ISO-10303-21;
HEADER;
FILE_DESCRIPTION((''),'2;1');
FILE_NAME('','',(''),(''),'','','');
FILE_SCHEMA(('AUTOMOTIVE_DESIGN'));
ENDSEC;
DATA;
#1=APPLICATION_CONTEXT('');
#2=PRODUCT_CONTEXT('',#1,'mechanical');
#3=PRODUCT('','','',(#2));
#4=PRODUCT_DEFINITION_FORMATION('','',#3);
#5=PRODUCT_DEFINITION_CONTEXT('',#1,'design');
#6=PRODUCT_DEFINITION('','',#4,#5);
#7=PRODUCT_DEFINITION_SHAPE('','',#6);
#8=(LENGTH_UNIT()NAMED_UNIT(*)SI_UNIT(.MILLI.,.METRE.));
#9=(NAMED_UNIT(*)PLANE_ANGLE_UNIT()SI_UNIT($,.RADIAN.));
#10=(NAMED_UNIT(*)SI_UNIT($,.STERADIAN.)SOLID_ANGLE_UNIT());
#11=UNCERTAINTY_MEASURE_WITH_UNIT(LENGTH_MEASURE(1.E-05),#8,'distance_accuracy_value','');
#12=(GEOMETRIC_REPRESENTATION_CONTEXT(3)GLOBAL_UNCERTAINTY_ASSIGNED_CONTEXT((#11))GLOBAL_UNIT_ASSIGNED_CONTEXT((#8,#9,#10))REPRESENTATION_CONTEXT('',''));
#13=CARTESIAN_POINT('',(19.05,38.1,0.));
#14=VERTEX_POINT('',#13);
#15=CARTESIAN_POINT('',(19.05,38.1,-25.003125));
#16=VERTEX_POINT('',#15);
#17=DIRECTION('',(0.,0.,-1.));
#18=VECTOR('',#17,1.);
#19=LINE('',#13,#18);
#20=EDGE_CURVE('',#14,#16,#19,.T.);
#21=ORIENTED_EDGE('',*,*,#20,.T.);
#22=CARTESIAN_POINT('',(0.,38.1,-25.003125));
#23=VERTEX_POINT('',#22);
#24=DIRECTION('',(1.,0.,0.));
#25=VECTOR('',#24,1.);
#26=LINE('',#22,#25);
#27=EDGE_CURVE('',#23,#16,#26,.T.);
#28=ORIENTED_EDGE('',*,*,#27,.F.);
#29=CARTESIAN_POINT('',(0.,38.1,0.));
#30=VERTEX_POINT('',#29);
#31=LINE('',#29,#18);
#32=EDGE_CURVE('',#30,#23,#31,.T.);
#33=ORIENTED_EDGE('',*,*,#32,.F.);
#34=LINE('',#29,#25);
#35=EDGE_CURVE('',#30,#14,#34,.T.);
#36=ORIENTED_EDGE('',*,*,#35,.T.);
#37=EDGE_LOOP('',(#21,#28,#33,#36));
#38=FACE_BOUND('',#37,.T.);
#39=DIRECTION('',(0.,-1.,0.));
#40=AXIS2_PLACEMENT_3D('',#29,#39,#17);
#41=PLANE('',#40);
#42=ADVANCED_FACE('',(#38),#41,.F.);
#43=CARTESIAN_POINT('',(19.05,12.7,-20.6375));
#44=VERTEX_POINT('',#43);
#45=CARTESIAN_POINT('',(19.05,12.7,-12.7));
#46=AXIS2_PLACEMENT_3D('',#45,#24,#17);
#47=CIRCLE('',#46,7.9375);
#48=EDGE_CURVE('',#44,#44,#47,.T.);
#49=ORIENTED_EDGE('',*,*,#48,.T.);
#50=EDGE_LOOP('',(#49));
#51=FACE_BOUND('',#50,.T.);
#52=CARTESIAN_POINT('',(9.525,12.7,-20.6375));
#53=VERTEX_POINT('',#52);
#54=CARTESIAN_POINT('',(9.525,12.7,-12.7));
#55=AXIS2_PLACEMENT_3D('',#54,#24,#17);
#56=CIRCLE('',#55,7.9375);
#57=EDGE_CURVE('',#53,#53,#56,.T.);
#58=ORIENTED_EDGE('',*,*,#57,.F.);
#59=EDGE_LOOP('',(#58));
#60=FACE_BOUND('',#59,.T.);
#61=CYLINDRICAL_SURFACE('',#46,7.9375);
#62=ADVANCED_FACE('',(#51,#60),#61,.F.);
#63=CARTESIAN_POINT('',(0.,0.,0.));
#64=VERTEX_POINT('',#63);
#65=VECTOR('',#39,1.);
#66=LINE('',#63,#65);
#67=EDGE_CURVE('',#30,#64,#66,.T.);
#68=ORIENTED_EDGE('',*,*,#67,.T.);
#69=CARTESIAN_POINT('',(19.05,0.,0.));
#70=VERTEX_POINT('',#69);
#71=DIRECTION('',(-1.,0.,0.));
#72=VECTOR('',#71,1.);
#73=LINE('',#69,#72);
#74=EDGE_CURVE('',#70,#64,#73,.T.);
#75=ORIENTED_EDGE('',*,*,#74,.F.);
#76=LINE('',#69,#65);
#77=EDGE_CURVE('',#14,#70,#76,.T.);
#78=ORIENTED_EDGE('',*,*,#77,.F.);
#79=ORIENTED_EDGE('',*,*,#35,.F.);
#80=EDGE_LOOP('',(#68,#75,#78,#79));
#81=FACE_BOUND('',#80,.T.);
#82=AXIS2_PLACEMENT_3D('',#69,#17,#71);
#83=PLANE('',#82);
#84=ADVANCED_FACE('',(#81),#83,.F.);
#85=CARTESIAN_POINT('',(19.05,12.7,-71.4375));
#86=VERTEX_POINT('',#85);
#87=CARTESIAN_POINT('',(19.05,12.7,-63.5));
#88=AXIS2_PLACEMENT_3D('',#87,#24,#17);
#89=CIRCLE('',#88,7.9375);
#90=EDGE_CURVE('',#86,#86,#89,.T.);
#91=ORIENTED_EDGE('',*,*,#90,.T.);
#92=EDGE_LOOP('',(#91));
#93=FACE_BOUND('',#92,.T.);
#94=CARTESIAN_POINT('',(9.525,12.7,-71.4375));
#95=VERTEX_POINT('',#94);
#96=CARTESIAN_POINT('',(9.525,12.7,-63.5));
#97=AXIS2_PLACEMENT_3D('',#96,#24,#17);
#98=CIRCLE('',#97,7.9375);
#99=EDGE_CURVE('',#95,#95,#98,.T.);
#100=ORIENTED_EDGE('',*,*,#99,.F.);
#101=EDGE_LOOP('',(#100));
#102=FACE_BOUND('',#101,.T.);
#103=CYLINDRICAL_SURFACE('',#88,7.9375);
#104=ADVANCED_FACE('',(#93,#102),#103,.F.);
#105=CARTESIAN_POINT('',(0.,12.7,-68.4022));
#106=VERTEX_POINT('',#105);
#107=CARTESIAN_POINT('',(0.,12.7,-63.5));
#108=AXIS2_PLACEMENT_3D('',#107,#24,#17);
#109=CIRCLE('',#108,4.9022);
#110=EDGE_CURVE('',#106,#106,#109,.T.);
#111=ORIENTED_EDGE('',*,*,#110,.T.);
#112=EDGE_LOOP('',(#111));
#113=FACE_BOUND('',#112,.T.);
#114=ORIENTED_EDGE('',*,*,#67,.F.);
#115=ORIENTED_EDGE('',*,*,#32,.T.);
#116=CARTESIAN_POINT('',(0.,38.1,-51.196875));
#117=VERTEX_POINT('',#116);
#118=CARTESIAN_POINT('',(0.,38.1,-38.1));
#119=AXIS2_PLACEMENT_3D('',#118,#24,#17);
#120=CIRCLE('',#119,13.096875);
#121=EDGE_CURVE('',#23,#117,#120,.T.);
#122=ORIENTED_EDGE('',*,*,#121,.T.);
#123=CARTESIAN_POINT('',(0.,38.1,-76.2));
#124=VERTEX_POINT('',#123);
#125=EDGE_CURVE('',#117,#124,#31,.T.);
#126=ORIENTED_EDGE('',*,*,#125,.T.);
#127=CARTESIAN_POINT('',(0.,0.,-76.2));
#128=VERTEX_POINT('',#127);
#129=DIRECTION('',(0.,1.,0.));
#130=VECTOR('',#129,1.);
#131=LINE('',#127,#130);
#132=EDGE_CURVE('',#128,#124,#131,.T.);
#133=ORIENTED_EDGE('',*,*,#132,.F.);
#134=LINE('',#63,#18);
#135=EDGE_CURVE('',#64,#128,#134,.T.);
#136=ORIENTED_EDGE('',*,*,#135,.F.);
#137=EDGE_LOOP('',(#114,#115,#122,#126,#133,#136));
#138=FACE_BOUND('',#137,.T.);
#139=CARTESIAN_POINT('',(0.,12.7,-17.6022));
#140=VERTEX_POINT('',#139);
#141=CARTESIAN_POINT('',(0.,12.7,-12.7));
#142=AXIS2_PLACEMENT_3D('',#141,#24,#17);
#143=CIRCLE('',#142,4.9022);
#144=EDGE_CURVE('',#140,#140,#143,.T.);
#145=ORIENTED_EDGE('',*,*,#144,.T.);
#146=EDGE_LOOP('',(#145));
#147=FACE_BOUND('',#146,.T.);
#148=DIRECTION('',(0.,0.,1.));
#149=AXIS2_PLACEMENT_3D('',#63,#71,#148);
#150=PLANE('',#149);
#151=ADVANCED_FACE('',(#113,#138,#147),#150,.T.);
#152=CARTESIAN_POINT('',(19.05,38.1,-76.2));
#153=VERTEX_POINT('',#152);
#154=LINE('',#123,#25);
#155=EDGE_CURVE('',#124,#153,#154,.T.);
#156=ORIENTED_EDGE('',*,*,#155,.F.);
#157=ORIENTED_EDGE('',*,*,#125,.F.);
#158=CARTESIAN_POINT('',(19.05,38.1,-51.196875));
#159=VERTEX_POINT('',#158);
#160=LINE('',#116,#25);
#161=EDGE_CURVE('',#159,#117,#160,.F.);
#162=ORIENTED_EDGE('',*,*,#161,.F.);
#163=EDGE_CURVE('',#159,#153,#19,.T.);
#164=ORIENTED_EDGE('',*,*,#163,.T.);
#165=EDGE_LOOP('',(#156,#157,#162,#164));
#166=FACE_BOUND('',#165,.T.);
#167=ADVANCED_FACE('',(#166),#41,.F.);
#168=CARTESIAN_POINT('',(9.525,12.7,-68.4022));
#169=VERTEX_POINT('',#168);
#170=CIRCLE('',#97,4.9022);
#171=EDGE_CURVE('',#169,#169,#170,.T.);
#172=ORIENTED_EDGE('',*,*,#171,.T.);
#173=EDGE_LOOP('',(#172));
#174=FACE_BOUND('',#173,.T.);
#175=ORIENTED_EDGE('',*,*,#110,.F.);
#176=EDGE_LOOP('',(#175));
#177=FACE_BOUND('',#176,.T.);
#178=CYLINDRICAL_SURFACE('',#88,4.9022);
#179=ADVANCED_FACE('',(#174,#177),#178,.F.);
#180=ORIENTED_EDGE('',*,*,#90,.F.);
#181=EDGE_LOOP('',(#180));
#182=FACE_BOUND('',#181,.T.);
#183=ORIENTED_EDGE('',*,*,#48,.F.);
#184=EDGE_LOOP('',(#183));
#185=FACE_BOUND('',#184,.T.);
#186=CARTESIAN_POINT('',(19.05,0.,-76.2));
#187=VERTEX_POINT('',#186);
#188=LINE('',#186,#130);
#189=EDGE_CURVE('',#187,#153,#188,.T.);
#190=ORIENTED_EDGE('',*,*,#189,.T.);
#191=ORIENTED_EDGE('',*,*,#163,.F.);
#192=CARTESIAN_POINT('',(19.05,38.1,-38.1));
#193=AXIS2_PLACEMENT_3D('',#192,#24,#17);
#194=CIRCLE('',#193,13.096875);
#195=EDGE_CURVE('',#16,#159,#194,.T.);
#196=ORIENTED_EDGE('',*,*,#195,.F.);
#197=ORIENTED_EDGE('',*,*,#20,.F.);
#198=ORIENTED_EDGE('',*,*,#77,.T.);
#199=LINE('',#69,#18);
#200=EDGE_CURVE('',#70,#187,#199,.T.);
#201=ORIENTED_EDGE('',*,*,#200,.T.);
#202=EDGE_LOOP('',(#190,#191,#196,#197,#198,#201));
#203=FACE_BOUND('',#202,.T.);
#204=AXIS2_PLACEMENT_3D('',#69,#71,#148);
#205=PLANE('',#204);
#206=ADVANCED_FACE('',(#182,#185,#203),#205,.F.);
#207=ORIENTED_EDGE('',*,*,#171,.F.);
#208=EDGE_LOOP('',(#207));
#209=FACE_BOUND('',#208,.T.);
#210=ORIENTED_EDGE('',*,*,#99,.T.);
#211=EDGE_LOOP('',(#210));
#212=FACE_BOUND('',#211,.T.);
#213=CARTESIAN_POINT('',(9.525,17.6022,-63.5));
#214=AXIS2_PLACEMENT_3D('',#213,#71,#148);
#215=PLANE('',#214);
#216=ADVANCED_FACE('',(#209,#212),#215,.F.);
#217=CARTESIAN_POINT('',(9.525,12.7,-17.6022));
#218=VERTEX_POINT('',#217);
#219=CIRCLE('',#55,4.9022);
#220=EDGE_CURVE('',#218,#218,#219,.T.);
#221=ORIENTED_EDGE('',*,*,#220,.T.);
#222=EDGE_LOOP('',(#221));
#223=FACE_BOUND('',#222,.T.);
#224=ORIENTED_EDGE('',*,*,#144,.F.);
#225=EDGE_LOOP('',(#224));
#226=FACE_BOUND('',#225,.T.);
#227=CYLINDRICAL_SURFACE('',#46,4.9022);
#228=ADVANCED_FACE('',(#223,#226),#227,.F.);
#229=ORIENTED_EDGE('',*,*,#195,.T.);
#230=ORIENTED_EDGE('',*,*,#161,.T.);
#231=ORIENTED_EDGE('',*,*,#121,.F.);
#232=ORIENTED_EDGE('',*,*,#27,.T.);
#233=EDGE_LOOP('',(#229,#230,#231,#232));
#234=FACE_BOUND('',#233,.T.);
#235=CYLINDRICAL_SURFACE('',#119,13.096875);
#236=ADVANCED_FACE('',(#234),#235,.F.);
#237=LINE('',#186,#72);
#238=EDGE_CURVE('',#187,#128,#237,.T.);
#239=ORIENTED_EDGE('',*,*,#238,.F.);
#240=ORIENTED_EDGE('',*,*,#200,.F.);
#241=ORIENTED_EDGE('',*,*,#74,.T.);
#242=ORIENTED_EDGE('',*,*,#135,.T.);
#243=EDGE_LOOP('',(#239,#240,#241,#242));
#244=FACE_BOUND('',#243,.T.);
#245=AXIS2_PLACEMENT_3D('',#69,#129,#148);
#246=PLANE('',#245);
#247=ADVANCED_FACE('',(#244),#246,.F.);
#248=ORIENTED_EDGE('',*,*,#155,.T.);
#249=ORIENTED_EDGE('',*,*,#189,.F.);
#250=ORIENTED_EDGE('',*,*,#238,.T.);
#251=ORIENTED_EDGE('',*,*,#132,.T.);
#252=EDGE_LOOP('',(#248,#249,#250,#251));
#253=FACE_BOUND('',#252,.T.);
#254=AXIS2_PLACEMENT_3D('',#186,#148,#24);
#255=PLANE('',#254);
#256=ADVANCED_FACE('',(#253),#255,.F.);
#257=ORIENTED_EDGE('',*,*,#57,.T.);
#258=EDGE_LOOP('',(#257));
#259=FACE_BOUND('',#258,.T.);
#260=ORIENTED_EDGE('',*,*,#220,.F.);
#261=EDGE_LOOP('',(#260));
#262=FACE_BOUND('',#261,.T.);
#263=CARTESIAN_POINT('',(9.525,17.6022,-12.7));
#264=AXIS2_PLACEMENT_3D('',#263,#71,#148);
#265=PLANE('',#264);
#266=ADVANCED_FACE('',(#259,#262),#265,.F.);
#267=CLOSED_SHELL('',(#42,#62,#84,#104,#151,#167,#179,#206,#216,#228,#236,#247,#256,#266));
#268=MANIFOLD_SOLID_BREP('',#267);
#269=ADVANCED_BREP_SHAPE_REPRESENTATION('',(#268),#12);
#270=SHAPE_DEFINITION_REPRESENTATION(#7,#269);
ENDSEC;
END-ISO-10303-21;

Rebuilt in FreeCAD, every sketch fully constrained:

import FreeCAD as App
import Part
import Sketcher
from FreeCAD import Vector
Q = App.Units.Quantity

doc = App.newDocument("Part")
params = doc.addObject("Spreadsheet::Sheet", "Params")
for row, (alias, value) in enumerate([
    ("sketch1_width", "3 in"),
    ("pad1_length", "0.75 in"),
    ("sketch2_diameter", "1.03125 in"),
    ("sketch3_diameter", "0.386 in"),
    ("hole_diameter", "0.386 in"),
    ("hole_cbore_diameter", "0.625 in"),
    ("hole_cbore_depth", "0.375 in"),
    ("sketch4_height", "3 in"),
    ("sketch4_width", "1.5 in"),
], start=1):
    params.set(f"A{row}", alias)
    params.set(f"B{row}", "=" + value)
    params.setAlias(f"B{row}", alias)

body = doc.addObject("PartDesign::Body", "Body")

# Sketch on YZ plane
sketch1 = doc.addObject("Sketcher::SketchObject", "Sketch")
body.addObject(sketch1)
sketch1.AttachmentSupport = (doc.YZ_Plane, [""])
sketch1.MapMode = "FlatFace"
sketch1.addGeometry(Part.LineSegment(Vector(76.2, 0, 0), Vector(0, 0, 0)), False)
sketch1.addGeometry(Part.LineSegment(Vector(0, 0, 0), Vector(0, -76.2, 0)), False)
sketch1.addGeometry(Part.LineSegment(Vector(0, -76.2, 0), Vector(76.2, -76.2, 0)), False)
sketch1.addGeometry(Part.LineSegment(Vector(76.2, -76.2, 0), Vector(76.2, 0, 0)), False)
sketch1.addConstraint(Sketcher.Constraint("Coincident", 0, 2, 1, 1))
sketch1.addConstraint(Sketcher.Constraint("Coincident", 1, 2, 2, 1))
sketch1.addConstraint(Sketcher.Constraint("Coincident", 2, 2, 3, 1))
sketch1.addConstraint(Sketcher.Constraint("Coincident", 3, 2, 0, 1))
sketch1.addConstraint(Sketcher.Constraint("Horizontal", 0))
sketch1.addConstraint(Sketcher.Constraint("Vertical", 1))
sketch1.addConstraint(Sketcher.Constraint("Horizontal", 2))
sketch1.addConstraint(Sketcher.Constraint("Vertical", 3))
sketch1.addConstraint(Sketcher.Constraint("Coincident", 0, 2, -1, 1))
sketch1.addConstraint(Sketcher.Constraint("Equal", 2, 1))
sketch1.addConstraint(Sketcher.Constraint("DistanceX", 0, 2, 0, 1, Q("3 in")))
sketch1.setExpression("Constraints[10]", "Params.sketch1_width")
pad1 = doc.addObject("PartDesign::Pad", "Pad")
body.addObject(pad1)
pad1.Profile = sketch1
pad1.setExpression("Length", "Params.pad1_length")

# Sketch on YZ plane
sketch2 = doc.addObject("Sketcher::SketchObject", "Sketch001")
body.addObject(sketch2)
sketch2.AttachmentSupport = (doc.YZ_Plane, [""])
sketch2.MapMode = "FlatFace"
sketch2.AttachmentOffset = App.Placement(Vector(0, 0, 0.75 * 25.4), App.Rotation())
sketch2.addGeometry(Part.Circle(Vector(38.1, -38.1, 0), Vector(0, 0, 1), 13.096875), False)
sketch2.addConstraint(Sketcher.Constraint("Diameter", 0, Q("1.03125 in")))
sketch2.addConstraint(Sketcher.Constraint("DistanceX", -1, 1, 0, 3, Q("1.5 in")))
sketch2.addConstraint(Sketcher.Constraint("DistanceY", 0, 3, -1, 1, Q("1.5 in")))
sketch2.setExpression("Constraints[0]", "Params.sketch2_diameter")
pocket1 = doc.addObject("PartDesign::Pocket", "Pocket")
body.addObject(pocket1)
pocket1.Profile = sketch2
pocket1.Type = "ThroughAll"

# Sketch on YZ plane
sketch3 = doc.addObject("Sketcher::SketchObject", "Sketch002")
body.addObject(sketch3)
sketch3.AttachmentSupport = (doc.YZ_Plane, [""])
sketch3.MapMode = "FlatFace"
sketch3.AttachmentOffset = App.Placement(Vector(0, 0, 0.75 * 25.4), App.Rotation())
sketch3.addGeometry(Part.Circle(Vector(12.7, -12.7, 0), Vector(0, 0, 1), 4.9022), False)
sketch3.addGeometry(Part.Circle(Vector(12.7, -63.5, 0), Vector(0, 0, 1), 4.9022), False)
sketch3.addConstraint(Sketcher.Constraint("Equal", 0, 1))
sketch3.addConstraint(Sketcher.Constraint("Vertical", 0, 3, 1, 3))
sketch3.addConstraint(Sketcher.Constraint("Diameter", 0, Q("0.386 in")))
sketch3.addConstraint(Sketcher.Constraint("DistanceY", 1, 3, 0, 3, Q("2 in")))
sketch3.addConstraint(Sketcher.Constraint("DistanceX", -1, 1, 0, 3, Q("0.5 in")))
sketch3.addConstraint(Sketcher.Constraint("DistanceY", 0, 3, -1, 1, Q("0.5 in")))
sketch3.setExpression("Constraints[2]", "Params.sketch3_diameter")
doc.recompute()
hole = doc.addObject("PartDesign::Hole", "Hole")
body.addObject(hole)
hole.Profile = sketch3
hole.ThreadType = "None"
hole.setExpression("Diameter", "Params.hole_diameter")
hole.DepthType = "ThroughAll"
hole.HoleCutType = "Counterbore"
hole.setExpression("HoleCutDiameter", "Params.hole_cbore_diameter")
hole.setExpression("HoleCutDepth", "Params.hole_cbore_depth")

# Sketch on YZ plane
sketch4 = doc.addObject("Sketcher::SketchObject", "Sketch003")
body.addObject(sketch4)
sketch4.AttachmentSupport = (doc.YZ_Plane, [""])
sketch4.MapMode = "FlatFace"
sketch4.AttachmentOffset = App.Placement(Vector(0, 0, 0.75 * 25.4), App.Rotation())
sketch4.addGeometry(Part.LineSegment(Vector(76.2, 0, 0), Vector(38.1, 0, 0)), False)
sketch4.addGeometry(Part.LineSegment(Vector(38.1, 0, 0), Vector(38.1, -76.2, 0)), False)
sketch4.addGeometry(Part.LineSegment(Vector(38.1, -76.2, 0), Vector(76.2, -76.2, 0)), False)
sketch4.addGeometry(Part.LineSegment(Vector(76.2, -76.2, 0), Vector(76.2, 0, 0)), False)
sketch4.addConstraint(Sketcher.Constraint("Coincident", 0, 2, 1, 1))
sketch4.addConstraint(Sketcher.Constraint("Coincident", 1, 2, 2, 1))
sketch4.addConstraint(Sketcher.Constraint("Coincident", 2, 2, 3, 1))
sketch4.addConstraint(Sketcher.Constraint("Coincident", 3, 2, 0, 1))
sketch4.addConstraint(Sketcher.Constraint("Horizontal", 0))
sketch4.addConstraint(Sketcher.Constraint("Vertical", 1))
sketch4.addConstraint(Sketcher.Constraint("Horizontal", 2))
sketch4.addConstraint(Sketcher.Constraint("Vertical", 3))
sketch4.addConstraint(Sketcher.Constraint("PointOnObject", 0, 2, -1))
sketch4.addConstraint(Sketcher.Constraint("DistanceY", 1, 2, 1, 1, Q("3 in")))
sketch4.addConstraint(Sketcher.Constraint("DistanceX", 0, 2, 0, 1, Q("1.5 in")))
sketch4.addConstraint(Sketcher.Constraint("DistanceX", -1, 1, 2, 2, Q("3 in")))
sketch4.setExpression("Constraints[9]", "Params.sketch4_height")
sketch4.setExpression("Constraints[10]", "Params.sketch4_width")
pocket2 = doc.addObject("PartDesign::Pocket", "Pocket001")
body.addObject(pocket2)
pocket2.Profile = sketch4
pocket2.Type = "ThroughAll"

doc.recompute()
